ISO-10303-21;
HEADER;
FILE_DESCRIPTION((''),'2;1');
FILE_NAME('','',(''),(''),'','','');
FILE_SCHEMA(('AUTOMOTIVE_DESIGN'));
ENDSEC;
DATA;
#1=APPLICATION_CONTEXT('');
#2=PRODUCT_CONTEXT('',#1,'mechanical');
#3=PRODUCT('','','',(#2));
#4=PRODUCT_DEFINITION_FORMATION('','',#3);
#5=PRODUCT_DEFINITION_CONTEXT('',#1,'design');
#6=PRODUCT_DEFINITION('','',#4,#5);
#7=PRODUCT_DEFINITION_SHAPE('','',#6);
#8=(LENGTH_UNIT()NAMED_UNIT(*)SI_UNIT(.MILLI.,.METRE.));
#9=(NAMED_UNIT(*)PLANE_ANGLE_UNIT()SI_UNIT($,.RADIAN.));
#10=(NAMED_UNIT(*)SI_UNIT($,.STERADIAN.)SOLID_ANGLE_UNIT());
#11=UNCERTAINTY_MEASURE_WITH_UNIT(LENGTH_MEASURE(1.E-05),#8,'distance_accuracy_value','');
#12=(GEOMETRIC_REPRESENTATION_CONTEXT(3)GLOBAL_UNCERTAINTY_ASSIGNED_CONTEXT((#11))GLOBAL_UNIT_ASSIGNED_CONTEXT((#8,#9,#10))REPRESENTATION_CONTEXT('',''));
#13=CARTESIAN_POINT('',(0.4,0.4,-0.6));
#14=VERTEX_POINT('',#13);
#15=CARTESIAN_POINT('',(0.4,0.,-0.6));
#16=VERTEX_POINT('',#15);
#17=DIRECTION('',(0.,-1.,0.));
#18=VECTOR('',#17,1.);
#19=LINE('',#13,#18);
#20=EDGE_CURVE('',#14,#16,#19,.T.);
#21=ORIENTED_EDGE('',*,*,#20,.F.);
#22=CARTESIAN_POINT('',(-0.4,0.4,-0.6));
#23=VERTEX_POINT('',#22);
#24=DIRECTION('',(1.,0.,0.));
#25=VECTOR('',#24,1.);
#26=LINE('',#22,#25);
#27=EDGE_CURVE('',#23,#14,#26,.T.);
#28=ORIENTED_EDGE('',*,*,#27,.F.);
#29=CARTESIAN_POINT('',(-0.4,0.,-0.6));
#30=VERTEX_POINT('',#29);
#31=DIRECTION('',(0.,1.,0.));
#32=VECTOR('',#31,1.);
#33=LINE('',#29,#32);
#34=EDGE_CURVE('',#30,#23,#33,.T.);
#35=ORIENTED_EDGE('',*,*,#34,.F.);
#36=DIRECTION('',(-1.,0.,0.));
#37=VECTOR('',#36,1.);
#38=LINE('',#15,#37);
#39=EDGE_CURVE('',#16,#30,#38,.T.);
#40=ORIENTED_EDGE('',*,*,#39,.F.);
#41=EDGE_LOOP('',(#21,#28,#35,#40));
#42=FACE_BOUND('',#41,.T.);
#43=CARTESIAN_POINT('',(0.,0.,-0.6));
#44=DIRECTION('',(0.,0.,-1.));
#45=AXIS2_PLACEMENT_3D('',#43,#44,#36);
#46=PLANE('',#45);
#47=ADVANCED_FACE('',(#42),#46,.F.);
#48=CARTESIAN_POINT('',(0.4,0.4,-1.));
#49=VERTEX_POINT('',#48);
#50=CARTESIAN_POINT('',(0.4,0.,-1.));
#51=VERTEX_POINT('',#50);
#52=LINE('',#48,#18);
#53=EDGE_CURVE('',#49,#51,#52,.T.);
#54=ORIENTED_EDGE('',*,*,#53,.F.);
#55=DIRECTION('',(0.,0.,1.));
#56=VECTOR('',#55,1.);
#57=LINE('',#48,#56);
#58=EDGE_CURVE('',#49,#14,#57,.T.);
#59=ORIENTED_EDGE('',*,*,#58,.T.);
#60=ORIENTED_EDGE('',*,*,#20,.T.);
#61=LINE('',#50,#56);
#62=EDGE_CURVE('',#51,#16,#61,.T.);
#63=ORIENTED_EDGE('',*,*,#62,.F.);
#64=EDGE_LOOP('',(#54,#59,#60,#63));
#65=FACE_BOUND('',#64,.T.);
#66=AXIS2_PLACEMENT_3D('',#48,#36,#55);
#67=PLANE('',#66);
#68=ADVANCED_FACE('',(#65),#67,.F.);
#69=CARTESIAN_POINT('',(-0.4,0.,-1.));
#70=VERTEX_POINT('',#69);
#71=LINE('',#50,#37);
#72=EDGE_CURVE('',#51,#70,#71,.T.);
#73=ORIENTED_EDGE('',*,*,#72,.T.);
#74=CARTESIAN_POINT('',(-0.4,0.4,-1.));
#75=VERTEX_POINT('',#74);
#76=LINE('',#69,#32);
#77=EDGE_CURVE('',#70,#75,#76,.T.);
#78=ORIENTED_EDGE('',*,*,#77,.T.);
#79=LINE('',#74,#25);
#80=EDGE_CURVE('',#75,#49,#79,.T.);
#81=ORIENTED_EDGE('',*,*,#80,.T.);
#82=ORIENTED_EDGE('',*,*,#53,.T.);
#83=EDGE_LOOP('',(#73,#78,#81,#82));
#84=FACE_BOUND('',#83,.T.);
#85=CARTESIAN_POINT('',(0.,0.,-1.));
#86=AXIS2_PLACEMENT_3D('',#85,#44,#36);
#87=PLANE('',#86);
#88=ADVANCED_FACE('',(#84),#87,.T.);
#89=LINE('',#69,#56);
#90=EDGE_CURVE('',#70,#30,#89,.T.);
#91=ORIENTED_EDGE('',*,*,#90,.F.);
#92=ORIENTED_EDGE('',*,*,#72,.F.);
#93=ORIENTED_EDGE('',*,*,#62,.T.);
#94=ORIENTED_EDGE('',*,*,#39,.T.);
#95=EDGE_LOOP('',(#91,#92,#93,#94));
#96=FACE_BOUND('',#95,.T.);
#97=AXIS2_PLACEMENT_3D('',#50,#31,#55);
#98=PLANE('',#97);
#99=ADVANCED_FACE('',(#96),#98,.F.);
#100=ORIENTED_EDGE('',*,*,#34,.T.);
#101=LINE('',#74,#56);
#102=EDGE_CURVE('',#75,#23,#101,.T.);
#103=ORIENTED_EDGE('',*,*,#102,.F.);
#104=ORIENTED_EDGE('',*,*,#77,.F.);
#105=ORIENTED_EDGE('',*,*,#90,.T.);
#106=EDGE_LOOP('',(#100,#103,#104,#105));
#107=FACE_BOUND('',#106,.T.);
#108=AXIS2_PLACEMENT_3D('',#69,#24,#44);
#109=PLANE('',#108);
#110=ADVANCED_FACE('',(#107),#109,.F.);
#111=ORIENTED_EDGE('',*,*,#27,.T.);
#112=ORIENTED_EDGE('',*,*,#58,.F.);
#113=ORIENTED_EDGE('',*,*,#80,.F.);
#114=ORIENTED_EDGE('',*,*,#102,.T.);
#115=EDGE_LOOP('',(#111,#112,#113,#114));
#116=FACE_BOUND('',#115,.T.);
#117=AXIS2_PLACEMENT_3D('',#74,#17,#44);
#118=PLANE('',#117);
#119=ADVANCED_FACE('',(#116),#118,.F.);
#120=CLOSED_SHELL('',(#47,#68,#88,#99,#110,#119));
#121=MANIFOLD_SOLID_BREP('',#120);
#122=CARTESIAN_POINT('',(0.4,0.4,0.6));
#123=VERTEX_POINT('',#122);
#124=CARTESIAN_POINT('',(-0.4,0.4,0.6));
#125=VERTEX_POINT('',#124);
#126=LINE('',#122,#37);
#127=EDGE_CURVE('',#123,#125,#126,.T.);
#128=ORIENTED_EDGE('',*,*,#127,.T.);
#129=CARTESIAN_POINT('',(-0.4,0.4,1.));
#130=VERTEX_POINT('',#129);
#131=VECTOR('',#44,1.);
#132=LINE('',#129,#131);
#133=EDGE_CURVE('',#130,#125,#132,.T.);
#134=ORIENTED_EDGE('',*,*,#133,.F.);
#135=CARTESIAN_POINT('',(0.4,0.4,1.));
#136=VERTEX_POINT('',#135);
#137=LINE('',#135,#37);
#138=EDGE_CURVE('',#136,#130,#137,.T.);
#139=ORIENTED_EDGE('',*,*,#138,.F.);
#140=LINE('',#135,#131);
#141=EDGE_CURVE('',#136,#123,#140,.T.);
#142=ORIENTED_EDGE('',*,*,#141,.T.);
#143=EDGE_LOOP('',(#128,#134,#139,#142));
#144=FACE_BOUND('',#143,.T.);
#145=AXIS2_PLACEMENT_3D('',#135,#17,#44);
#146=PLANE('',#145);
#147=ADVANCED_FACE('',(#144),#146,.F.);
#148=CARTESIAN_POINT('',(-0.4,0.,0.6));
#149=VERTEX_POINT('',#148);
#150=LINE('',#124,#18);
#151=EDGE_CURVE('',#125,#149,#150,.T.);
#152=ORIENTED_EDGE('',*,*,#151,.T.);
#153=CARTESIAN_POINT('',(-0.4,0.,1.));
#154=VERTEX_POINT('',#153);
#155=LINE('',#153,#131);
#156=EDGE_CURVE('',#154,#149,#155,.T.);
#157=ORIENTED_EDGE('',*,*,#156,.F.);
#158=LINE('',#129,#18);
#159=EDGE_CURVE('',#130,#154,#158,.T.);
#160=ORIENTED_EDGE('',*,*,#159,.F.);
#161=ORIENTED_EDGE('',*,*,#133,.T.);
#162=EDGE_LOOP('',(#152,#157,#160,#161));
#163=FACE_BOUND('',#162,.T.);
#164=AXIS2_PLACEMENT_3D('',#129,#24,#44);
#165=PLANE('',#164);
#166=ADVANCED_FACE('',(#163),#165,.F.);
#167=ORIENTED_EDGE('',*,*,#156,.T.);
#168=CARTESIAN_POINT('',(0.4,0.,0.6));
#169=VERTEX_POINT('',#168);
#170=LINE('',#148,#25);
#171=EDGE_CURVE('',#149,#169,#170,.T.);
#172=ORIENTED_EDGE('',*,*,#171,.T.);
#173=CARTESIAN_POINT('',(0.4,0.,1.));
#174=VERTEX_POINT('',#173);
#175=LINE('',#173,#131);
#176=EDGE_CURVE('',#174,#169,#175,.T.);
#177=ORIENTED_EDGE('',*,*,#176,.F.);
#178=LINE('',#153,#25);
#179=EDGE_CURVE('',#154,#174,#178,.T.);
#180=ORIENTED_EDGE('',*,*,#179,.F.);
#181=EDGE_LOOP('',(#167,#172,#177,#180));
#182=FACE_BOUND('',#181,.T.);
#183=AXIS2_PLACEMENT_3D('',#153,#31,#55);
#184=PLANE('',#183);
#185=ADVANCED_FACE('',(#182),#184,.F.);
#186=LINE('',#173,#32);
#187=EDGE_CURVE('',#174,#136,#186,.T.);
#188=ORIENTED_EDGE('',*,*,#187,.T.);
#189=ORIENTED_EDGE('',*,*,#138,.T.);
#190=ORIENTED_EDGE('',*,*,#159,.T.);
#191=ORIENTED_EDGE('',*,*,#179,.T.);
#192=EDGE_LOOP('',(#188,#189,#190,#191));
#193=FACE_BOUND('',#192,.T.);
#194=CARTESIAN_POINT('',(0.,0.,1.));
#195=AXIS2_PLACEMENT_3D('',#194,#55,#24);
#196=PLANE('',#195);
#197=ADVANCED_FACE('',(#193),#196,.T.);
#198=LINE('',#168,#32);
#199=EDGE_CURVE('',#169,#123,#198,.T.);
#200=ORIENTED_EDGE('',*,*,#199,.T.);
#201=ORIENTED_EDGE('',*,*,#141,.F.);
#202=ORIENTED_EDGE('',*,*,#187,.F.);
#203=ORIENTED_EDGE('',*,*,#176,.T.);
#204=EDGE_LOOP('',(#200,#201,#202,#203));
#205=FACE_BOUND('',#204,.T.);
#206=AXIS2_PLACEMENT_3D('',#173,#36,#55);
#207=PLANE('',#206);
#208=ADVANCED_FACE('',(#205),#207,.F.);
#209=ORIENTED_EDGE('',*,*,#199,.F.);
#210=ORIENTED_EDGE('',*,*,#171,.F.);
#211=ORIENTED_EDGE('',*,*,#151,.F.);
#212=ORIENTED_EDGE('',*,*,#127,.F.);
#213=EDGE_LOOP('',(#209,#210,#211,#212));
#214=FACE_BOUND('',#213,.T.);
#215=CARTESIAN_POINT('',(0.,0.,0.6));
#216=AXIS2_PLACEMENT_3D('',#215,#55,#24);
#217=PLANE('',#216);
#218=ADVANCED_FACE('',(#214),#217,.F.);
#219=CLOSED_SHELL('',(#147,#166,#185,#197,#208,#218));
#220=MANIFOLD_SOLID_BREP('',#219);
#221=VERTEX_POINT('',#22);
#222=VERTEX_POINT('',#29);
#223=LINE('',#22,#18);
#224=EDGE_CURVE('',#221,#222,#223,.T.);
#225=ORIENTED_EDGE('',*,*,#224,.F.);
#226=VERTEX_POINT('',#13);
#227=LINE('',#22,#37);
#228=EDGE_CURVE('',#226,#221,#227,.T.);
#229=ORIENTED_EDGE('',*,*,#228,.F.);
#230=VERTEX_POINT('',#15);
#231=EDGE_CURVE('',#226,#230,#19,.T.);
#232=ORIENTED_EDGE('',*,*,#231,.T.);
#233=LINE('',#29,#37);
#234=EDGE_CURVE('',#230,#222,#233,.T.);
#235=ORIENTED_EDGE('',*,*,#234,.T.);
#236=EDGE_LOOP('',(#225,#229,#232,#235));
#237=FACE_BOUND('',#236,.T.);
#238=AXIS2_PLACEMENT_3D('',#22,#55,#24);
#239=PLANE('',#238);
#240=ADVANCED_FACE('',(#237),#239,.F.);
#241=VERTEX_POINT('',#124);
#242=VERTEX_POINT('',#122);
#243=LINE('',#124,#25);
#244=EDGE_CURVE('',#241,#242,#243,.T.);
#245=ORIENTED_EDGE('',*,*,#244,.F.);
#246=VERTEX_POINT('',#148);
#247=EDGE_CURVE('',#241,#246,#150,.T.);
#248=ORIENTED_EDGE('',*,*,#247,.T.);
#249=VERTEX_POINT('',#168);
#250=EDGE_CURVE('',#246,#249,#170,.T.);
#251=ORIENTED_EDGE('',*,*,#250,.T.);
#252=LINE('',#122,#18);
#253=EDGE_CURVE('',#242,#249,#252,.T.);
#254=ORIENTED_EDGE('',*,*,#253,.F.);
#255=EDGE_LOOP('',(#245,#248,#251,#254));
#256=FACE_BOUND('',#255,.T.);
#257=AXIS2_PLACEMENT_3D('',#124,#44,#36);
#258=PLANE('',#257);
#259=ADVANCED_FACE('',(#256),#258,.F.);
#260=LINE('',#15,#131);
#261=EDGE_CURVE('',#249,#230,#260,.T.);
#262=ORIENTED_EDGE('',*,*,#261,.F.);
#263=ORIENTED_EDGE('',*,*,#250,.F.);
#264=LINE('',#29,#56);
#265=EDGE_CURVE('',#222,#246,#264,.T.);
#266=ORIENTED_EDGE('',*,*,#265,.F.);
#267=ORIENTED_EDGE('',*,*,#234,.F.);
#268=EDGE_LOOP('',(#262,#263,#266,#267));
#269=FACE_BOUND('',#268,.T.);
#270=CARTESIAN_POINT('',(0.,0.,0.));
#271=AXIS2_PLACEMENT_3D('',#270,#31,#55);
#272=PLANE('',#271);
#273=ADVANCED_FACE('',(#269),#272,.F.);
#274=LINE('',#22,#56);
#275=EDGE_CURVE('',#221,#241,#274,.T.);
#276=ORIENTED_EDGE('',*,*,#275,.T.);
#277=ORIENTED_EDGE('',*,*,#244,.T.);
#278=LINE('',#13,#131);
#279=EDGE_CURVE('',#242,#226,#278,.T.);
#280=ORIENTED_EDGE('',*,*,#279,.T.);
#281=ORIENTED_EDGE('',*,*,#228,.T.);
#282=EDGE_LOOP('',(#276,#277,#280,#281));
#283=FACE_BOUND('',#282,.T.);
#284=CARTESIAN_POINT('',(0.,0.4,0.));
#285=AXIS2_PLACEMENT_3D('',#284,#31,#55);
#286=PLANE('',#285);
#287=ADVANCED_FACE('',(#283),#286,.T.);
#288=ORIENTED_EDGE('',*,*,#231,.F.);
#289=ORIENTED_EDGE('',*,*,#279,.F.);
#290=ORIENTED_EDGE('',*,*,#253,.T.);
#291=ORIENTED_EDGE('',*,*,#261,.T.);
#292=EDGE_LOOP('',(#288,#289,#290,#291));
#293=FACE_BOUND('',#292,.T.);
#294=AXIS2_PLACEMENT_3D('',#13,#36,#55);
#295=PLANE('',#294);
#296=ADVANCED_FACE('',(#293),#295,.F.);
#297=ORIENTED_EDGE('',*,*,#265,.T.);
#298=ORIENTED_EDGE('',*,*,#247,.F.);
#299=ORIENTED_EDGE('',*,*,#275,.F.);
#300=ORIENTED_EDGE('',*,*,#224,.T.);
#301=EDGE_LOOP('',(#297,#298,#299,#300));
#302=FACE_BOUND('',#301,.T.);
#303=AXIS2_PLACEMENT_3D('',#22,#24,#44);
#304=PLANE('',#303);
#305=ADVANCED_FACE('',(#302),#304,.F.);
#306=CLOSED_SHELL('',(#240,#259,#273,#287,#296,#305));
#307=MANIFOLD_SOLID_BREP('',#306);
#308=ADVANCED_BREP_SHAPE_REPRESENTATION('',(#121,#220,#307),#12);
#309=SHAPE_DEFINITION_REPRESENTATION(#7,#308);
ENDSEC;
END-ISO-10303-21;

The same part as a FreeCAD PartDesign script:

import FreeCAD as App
import Part
import Sketcher

V = App.Vector

doc = App.newDocument("Part")
params = doc.addObject("Spreadsheet::Sheet", "Params")
for row, (alias, value) in enumerate([
    ("sketch1_width", "0.8 mm"),
    ("sketch1_height", "1.2 mm"),
    ("pad1_length", "0.4 mm"),
    ("sketch2_width", "0.8 mm"),
    ("sketch2_height", "0.4 mm"),
    ("pad2_length", "0.4 mm"),
    ("sketch3_width", "0.8 mm"),
    ("sketch3_height", "0.4 mm"),
    ("pad3_length", "0.4 mm"),
], start=1):
    params.set(f"A{row}", alias)
    params.set(f"B{row}", "=" + value)
    params.setAlias(f"B{row}", alias)

body = doc.addObject("PartDesign::Body", "Body")

# Sketch on XZ plane
sketch1 = body.newObject("Sketcher::SketchObject", "Sketch")
sketch1.AttachmentSupport = (doc.getObject("XZ_Plane"), [""])
sketch1.MapMode = "FlatFace"
sketch1.addGeometry([
    Part.LineSegment(V(-0.4, -0.6, 0), V(-0.4, 0.6, 0)),
    Part.LineSegment(V(-0.4, 0.6, 0), V(0.4, 0.6, 0)),
    Part.LineSegment(V(0.4, 0.6, 0), V(0.4, -0.6, 0)),
    Part.LineSegment(V(0.4, -0.6, 0), V(-0.4, -0.6, 0)),
], False)
sketch1.addConstraint([
    Sketcher.Constraint("Coincident", 0, 2, 1, 1),
    Sketcher.Constraint("Coincident", 1, 2, 2, 1),
    Sketcher.Constraint("Coincident", 2, 2, 3, 1),
    Sketcher.Constraint("Coincident", 3, 2, 0, 1),
    Sketcher.Constraint("Vertical", 0),
    Sketcher.Constraint("Horizontal", 1),
    Sketcher.Constraint("Vertical", 2),
    Sketcher.Constraint("Horizontal", 3),
    Sketcher.Constraint("Symmetric", 0, 2, 2, 2, -1, 1),
    Sketcher.Constraint("DistanceX", 1, 1, 1, 2, 0.8),
    Sketcher.Constraint("DistanceY", 0, 1, 0, 2, 1.2),
])
sketch1.setExpression("Constraints[9]", "Params.sketch1_width")
sketch1.setExpression("Constraints[10]", "Params.sketch1_height")
pad1 = body.newObject("PartDesign::Pad", "Pad")
pad1.Profile = sketch1
pad1.setExpression("Length", "Params.pad1_length")
pad1.Reversed = True
body2 = doc.addObject("PartDesign::Body", "Body001")

# Sketch on XY plane
sketch2 = body2.newObject("Sketcher::SketchObject", "Sketch001")
sketch2.AttachmentSupport = (doc.getObject("XY_Plane001"), [""])
sketch2.MapMode = "FlatFace"
sketch2.AttachmentOffset = App.Placement(V(0, 0, 0.6), App.Rotation())
sketch2.addGeometry([
    Part.LineSegment(V(-0.4, 0.4, 0), V(-0.4, 0, 0)),
    Part.LineSegment(V(-0.4, 0, 0), V(0.4, 0, 0)),
    Part.LineSegment(V(0.4, 0, 0), V(0.4, 0.4, 0)),
    Part.LineSegment(V(0.4, 0.4, 0), V(-0.4, 0.4, 0)),
], False)
sketch2.addConstraint([
    Sketcher.Constraint("Coincident", 0, 2, 1, 1),
    Sketcher.Constraint("Coincident", 1, 2, 2, 1),
    Sketcher.Constraint("Coincident", 2, 2, 3, 1),
    Sketcher.Constraint("Coincident", 3, 2, 0, 1),
    Sketcher.Constraint("Vertical", 0),
    Sketcher.Constraint("Horizontal", 1),
    Sketcher.Constraint("Vertical", 2),
    Sketcher.Constraint("Horizontal", 3),
    Sketcher.Constraint("Symmetric", 0, 2, 1, 2, -1, 1),
    Sketcher.Constraint("DistanceX", 1, 1, 1, 2, 0.8),
    Sketcher.Constraint("DistanceY", 0, 2, 0, 1, 0.4),
])
sketch2.setExpression("Constraints[9]", "Params.sketch2_width")
sketch2.setExpression("Constraints[10]", "Params.sketch2_height")
pad2 = body2.newObject("PartDesign::Pad", "Pad001")
pad2.Profile = sketch2
pad2.setExpression("Length", "Params.pad2_length")
body3 = doc.addObject("PartDesign::Body", "Body002")

# Sketch on XY plane
sketch3 = body3.newObject("Sketcher::SketchObject", "Sketch002")
sketch3.AttachmentSupport = (doc.getObject("XY_Plane002"), [""])
sketch3.MapMode = "FlatFace"
sketch3.AttachmentOffset = App.Placement(V(0, 0, -0.6), App.Rotation())
sketch3.addGeometry([
    Part.LineSegment(V(0.4, 0.4, 0), V(0.4, 0, 0)),
    Part.LineSegment(V(0.4, 0, 0), V(-0.4, 0, 0)),
    Part.LineSegment(V(-0.4, 0, 0), V(-0.4, 0.4, 0)),
    Part.LineSegment(V(-0.4, 0.4, 0), V(0.4, 0.4, 0)),
], False)
sketch3.addConstraint([
    Sketcher.Constraint("Coincident", 0, 2, 1, 1),
    Sketcher.Constraint("Coincident", 1, 2, 2, 1),
    Sketcher.Constraint("Coincident", 2, 2, 3, 1),
    Sketcher.Constraint("Coincident", 3, 2, 0, 1),
    Sketcher.Constraint("Vertical", 0),
    Sketcher.Constraint("Horizontal", 1),
    Sketcher.Constraint("Vertical", 2),
    Sketcher.Constraint("Horizontal", 3),
    Sketcher.Constraint("Symmetric", 0, 2, 1, 2, -1, 1),
    Sketcher.Constraint("DistanceX", 1, 2, 1, 1, 0.8),
    Sketcher.Constraint("DistanceY", 0, 2, 0, 1, 0.4),
])
sketch3.setExpression("Constraints[9]", "Params.sketch3_width")
sketch3.setExpression("Constraints[10]", "Params.sketch3_height")
pad3 = body3.newObject("PartDesign::Pad", "Pad002")
pad3.Profile = sketch3
pad3.setExpression("Length", "Params.pad3_length")
pad3.Reversed = True

doc.recompute()
